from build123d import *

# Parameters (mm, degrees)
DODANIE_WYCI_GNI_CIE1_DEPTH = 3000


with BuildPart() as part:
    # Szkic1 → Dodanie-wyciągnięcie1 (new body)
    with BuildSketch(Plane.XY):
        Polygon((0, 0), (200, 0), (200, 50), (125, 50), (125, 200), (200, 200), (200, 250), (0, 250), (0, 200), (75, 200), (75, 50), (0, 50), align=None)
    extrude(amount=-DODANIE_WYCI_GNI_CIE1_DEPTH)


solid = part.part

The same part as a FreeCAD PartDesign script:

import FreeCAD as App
import Part
import Sketcher

V = App.Vector


def add_polygon(sketch, points):
    """Adds a closed chain of lines whose ends are joined by coincident constraints."""
    first, n = sketch.GeometryCount, len(points)
    for a, b in zip(points, points[1:] + points[:1]):
        sketch.addGeometry(Part.LineSegment(App.Vector(*a, 0), App.Vector(*b, 0)), False)
    for i in range(n):
        sketch.addConstraint(Sketcher.Constraint("Coincident", first + i, 2, first + (i + 1) % n, 1))

doc = App.newDocument("Part")
body = doc.addObject("PartDesign::Body", "Body")

# Sketch on XY plane
sketch1 = doc.addObject("Sketcher::SketchObject", "Sketch")
body.addObject(sketch1)
sketch1.AttachmentSupport = (doc.XY_Plane, [""])
sketch1.MapMode = "FlatFace"
add_polygon(sketch1, [(0, 0), (200, 0), (200, 50), (125, 50), (125, 200), (200, 200), (200, 250), (0, 250), (0, 200), (75, 200), (75, 50), (0, 50)])  # lines 0-11
sketch1.addConstraint(Sketcher.Constraint("Horizontal", 0))
sketch1.addConstraint(Sketcher.Constraint("Vertical", 1))
sketch1.addConstraint(Sketcher.Constraint("Horizontal", 2))
sketch1.addConstraint(Sketcher.Constraint("Vertical", 3))
sketch1.addConstraint(Sketcher.Constraint("Horizontal", 4))
sketch1.addConstraint(Sketcher.Constraint("Vertical", 5))
sketch1.addConstraint(Sketcher.Constraint("Horizontal", 6))
sketch1.addConstraint(Sketcher.Constraint("Vertical", 7))
sketch1.addConstraint(Sketcher.Constraint("Horizontal", 8))
sketch1.addConstraint(Sketcher.Constraint("Vertical", 9))
sketch1.addConstraint(Sketcher.Constraint("Horizontal", 10))
sketch1.addConstraint(Sketcher.Constraint("Vertical", 11))
sketch1.addConstraint(Sketcher.Constraint("Coincident", 11, 2, -1, 1))
sketch1.addConstraint(Sketcher.Constraint("PointOnObject", 6, 2, -2))
sketch1.addConstraint(Sketcher.Constraint("Horizontal", 4, 2, 7, 2))
sketch1.addConstraint(Sketcher.Constraint("Horizontal", 2, 2, 9, 2))
sketch1.addConstraint(Sketcher.Constraint("Vertical", 1, 2, 4, 2))
sketch1.addConstraint(Sketcher.Constraint("Equal", 4, 8))
sketch1.addConstraint(Sketcher.Constraint("Equal", 1, 5))
sketch1.addConstraint(Sketcher.Constraint("DistanceX", 0, 1, 0, 2, 200.0))
sketch1.addConstraint(Sketcher.Constraint("DistanceX", 2, 2, 2, 1, 75.0))
sketch1.addConstraint(Sketcher.Constraint("DistanceY", 1, 1, 1, 2, 50.0))
sketch1.addConstraint(Sketcher.Constraint("DistanceY", 3, 1, 3, 2, 150.0))
pad1 = doc.addObject("PartDesign::Pad", "Pad")
body.addObject(pad1)
pad1.Profile = sketch1
pad1.Length = 3000
pad1.Reversed = True

doc.recompute()
